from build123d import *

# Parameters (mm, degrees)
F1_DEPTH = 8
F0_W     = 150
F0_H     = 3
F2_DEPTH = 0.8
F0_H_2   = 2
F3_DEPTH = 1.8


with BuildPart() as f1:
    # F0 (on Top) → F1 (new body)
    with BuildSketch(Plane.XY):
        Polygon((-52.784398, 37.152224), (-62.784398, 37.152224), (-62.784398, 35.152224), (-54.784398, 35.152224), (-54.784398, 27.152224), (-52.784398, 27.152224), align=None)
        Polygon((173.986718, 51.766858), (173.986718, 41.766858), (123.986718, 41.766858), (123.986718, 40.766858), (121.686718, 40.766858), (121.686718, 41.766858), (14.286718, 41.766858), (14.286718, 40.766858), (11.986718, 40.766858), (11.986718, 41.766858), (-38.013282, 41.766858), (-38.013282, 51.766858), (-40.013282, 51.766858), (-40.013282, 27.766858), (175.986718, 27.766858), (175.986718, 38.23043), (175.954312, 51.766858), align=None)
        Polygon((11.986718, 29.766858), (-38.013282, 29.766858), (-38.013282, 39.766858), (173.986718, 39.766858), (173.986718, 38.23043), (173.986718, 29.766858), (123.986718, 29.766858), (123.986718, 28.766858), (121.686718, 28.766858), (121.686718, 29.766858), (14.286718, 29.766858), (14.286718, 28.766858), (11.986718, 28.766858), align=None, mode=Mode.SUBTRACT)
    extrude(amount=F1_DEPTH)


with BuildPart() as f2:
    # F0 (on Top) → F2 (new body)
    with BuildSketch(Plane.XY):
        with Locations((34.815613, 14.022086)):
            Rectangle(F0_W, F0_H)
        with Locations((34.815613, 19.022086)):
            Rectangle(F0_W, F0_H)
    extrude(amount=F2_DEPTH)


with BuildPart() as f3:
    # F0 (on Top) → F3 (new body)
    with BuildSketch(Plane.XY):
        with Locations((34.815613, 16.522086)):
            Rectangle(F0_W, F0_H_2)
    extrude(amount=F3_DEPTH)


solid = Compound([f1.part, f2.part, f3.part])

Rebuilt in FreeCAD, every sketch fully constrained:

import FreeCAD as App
import Part
import Sketcher

V = App.Vector

doc = App.newDocument("Part")
body = doc.addObject("PartDesign::Body", "Body")
body.AllowCompound = True

# Sketch on XY plane
sketch1 = doc.addObject("Sketcher::SketchObject", "Sketch")
body.addObject(sketch1)
sketch1.AttachmentSupport = (doc.XY_Plane, [""])
sketch1.MapMode = "FlatFace"
sketch1.addGeometry(Part.LineSegment(V(-52.8, 37.2, 0), V(-62.8, 37.2, 0)), False)
sketch1.addGeometry(Part.LineSegment(V(-62.8, 37.2, 0), V(-62.8, 35.2, 0)), False)
sketch1.addGeometry(Part.LineSegment(V(-62.8, 35.2, 0), V(-54.8, 35.2, 0)), False)
sketch1.addGeometry(Part.LineSegment(V(-54.8, 35.2, 0), V(-54.8, 27.2, 0)), False)
sketch1.addGeometry(Part.LineSegment(V(-54.8, 27.2, 0), V(-52.8, 27.2, 0)), False)
sketch1.addGeometry(Part.LineSegment(V(-52.8, 27.2, 0), V(-52.8, 37.2, 0)), False)
sketch1.addGeometry(Part.LineSegment(V(174, 51.8, 0), V(174, 41.8, 0)), False)
sketch1.addGeometry(Part.LineSegment(V(174, 41.8, 0), V(124, 41.8, 0)), False)
sketch1.addGeometry(Part.LineSegment(V(124, 41.8, 0), V(124, 40.8, 0)), False)
sketch1.addGeometry(Part.LineSegment(V(124, 40.8, 0), V(121.7, 40.8, 0)), False)
sketch1.addGeometry(Part.LineSegment(V(121.7, 40.8, 0), V(121.7, 41.8, 0)), False)
sketch1.addGeometry(Part.LineSegment(V(121.7, 41.8, 0), V(14.3, 41.8, 0)), False)
sketch1.addGeometry(Part.LineSegment(V(14.3, 41.8, 0), V(14.3, 40.8, 0)), False)
sketch1.addGeometry(Part.LineSegment(V(14.3, 40.8, 0), V(12, 40.8, 0)), False)
sketch1.addGeometry(Part.LineSegment(V(12, 40.8, 0), V(12, 41.8, 0)), False)
sketch1.addGeometry(Part.LineSegment(V(12, 41.8, 0), V(-38, 41.8, 0)), False)
sketch1.addGeometry(Part.LineSegment(V(-38, 41.8, 0), V(-38, 51.8, 0)), False)
sketch1.addGeometry(Part.LineSegment(V(-38, 51.8, 0), V(-40, 51.8, 0)), False)
sketch1.addGeometry(Part.LineSegment(V(-40, 51.8, 0), V(-40, 27.8, 0)), False)
sketch1.addGeometry(Part.LineSegment(V(-40, 27.8, 0), V(176, 27.8, 0)), False)
sketch1.addGeometry(Part.LineSegment(V(176, 27.8, 0), V(176, 38.2, 0)), False)
sketch1.addGeometry(Part.LineSegment(V(176, 38.2, 0), V(176, 51.8, 0)), False)
sketch1.addGeometry(Part.LineSegment(V(176, 51.8, 0), V(174, 51.8, 0)), False)
sketch1.addGeometry(Part.LineSegment(V(12, 28.8, 0), V(12, 29.8, 0)), False)
sketch1.addGeometry(Part.LineSegment(V(12, 29.8, 0), V(-38, 29.8, 0)), False)
sketch1.addGeometry(Part.LineSegment(V(-38, 29.8, 0), V(-38, 39.8, 0)), False)
sketch1.addGeometry(Part.LineSegment(V(-38, 39.8, 0), V(174, 39.8, 0)), False)
sketch1.addGeometry(Part.LineSegment(V(174, 39.8, 0), V(174, 29.8, 0)), False)
sketch1.addGeometry(Part.LineSegment(V(174, 29.8, 0), V(124, 29.8, 0)), False)
sketch1.addGeometry(Part.LineSegment(V(124, 29.8, 0), V(124, 28.8, 0)), False)
sketch1.addGeometry(Part.LineSegment(V(124, 28.8, 0), V(121.7, 28.8, 0)), False)
sketch1.addGeometry(Part.LineSegment(V(121.7, 28.8, 0), V(121.7, 29.8, 0)), False)
sketch1.addGeometry(Part.LineSegment(V(121.7, 29.8, 0), V(14.3, 29.8, 0)), False)
sketch1.addGeometry(Part.LineSegment(V(14.3, 29.8, 0), V(14.3, 28.8, 0)), False)
sketch1.addGeometry(Part.LineSegment(V(14.3, 28.8, 0), V(12, 28.8, 0)), False)
sketch1.addConstraint(Sketcher.Constraint("Coincident", 0, 2, 1, 1))
sketch1.addConstraint(Sketcher.Constraint("Coincident", 1, 2, 2, 1))
sketch1.addConstraint(Sketcher.Constraint("Coincident", 2, 2, 3, 1))
sketch1.addConstraint(Sketcher.Constraint("Coincident", 3, 2, 4, 1))
sketch1.addConstraint(Sketcher.Constraint("Coincident", 4, 2, 5, 1))
sketch1.addConstraint(Sketcher.Constraint("Coincident", 5, 2, 0, 1))
sketch1.addConstraint(Sketcher.Constraint("Coincident", 6, 2, 7, 1))
sketch1.addConstraint(Sketcher.Constraint("Coincident", 7, 2, 8, 1))
sketch1.addConstraint(Sketcher.Constraint("Coincident", 8, 2, 9, 1))
sketch1.addConstraint(Sketcher.Constraint("Coincident", 9, 2, 10, 1))
sketch1.addConstraint(Sketcher.Constraint("Coincident", 10, 2, 11, 1))
sketch1.addConstraint(Sketcher.Constraint("Coincident", 11, 2, 12, 1))
sketch1.addConstraint(Sketcher.Constraint("Coincident", 12, 2, 13, 1))
sketch1.addConstraint(Sketcher.Constraint("Coincident", 13, 2, 14, 1))
sketch1.addConstraint(Sketcher.Constraint("Coincident", 14, 2, 15, 1))
sketch1.addConstraint(Sketcher.Constraint("Coincident", 15, 2, 16, 1))
sketch1.addConstraint(Sketcher.Constraint("Coincident", 16, 2, 17, 1))
sketch1.addConstraint(Sketcher.Constraint("Coincident", 17, 2, 18, 1))
sketch1.addConstraint(Sketcher.Constraint("Coincident", 18, 2, 19, 1))
sketch1.addConstraint(Sketcher.Constraint("Coincident", 19, 2, 20, 1))
sketch1.addConstraint(Sketcher.Constraint("Coincident", 20, 2, 21, 1))
sketch1.addConstraint(Sketcher.Constraint("Coincident", 21, 2, 22, 1))
sketch1.addConstraint(Sketcher.Constraint("Coincident", 22, 2, 6, 1))
sketch1.addConstraint(Sketcher.Constraint("Coincident", 23, 2, 24, 1))
sketch1.addConstraint(Sketcher.Constraint("Coincident", 24, 2, 25, 1))
sketch1.addConstraint(Sketcher.Constraint("Coincident", 25, 2, 26, 1))
sketch1.addConstraint(Sketcher.Constraint("Coincident", 26, 2, 27, 1))
sketch1.addConstraint(Sketcher.Constraint("Coincident", 27, 2, 28, 1))
sketch1.addConstraint(Sketcher.Constraint("Coincident", 28, 2, 29, 1))
sketch1.addConstraint(Sketcher.Constraint("Coincident", 29, 2, 30, 1))
sketch1.addConstraint(Sketcher.Constraint("Coincident", 30, 2, 31, 1))
sketch1.addConstraint(Sketcher.Constraint("Coincident", 31, 2, 32, 1))
sketch1.addConstraint(Sketcher.Constraint("Coincident", 32, 2, 33, 1))
sketch1.addConstraint(Sketcher.Constraint("Coincident", 33, 2, 34, 1))
sketch1.addConstraint(Sketcher.Constraint("Coincident", 34, 2, 23, 1))
sketch1.addConstraint(Sketcher.Constraint("Horizontal", 0))
sketch1.addConstraint(Sketcher.Constraint("Vertical", 1))
sketch1.addConstraint(Sketcher.Constraint("Horizontal", 2))
sketch1.addConstraint(Sketcher.Constraint("Vertical", 3))
sketch1.addConstraint(Sketcher.Constraint("Horizontal", 4))
sketch1.addConstraint(Sketcher.Constraint("Vertical", 5))
sketch1.addConstraint(Sketcher.Constraint("Vertical", 6))
sketch1.addConstraint(Sketcher.Constraint("Horizontal", 7))
sketch1.addConstraint(Sketcher.Constraint("Vertical", 8))
sketch1.addConstraint(Sketcher.Constraint("Horizontal", 9))
sketch1.addConstraint(Sketcher.Constraint("Vertical", 10))
sketch1.addConstraint(Sketcher.Constraint("Horizontal", 11))
sketch1.addConstraint(Sketcher.Constraint("Vertical", 12))
sketch1.addConstraint(Sketcher.Constraint("Horizontal", 13))
sketch1.addConstraint(Sketcher.Constraint("Vertical", 14))
sketch1.addConstraint(Sketcher.Constraint("Horizontal", 15))
sketch1.addConstraint(Sketcher.Constraint("Vertical", 16))
sketch1.addConstraint(Sketcher.Constraint("Horizontal", 17))
sketch1.addConstraint(Sketcher.Constraint("Vertical", 18))
sketch1.addConstraint(Sketcher.Constraint("Horizontal", 19))
sketch1.addConstraint(Sketcher.Constraint("Vertical", 20))
sketch1.addConstraint(Sketcher.Constraint("Horizontal", 22))
sketch1.addConstraint(Sketcher.Constraint("Vertical", 23))
sketch1.addConstraint(Sketcher.Constraint("Horizontal", 24))
sketch1.addConstraint(Sketcher.Constraint("Vertical", 25))
sketch1.addConstraint(Sketcher.Constraint("Horizontal", 26))
sketch1.addConstraint(Sketcher.Constraint("Vertical", 27))
sketch1.addConstraint(Sketcher.Constraint("Horizontal", 28))
sketch1.addConstraint(Sketcher.Constraint("Vertical", 29))
sketch1.addConstraint(Sketcher.Constraint("Horizontal", 30))
sketch1.addConstraint(Sketcher.Constraint("Vertical", 31))
sketch1.addConstraint(Sketcher.Constraint("Horizontal", 32))
sketch1.addConstraint(Sketcher.Constraint("Vertical", 33))
sketch1.addConstraint(Sketcher.Constraint("Horizontal", 34))
sketch1.addConstraint(Sketcher.Constraint("Horizontal", 7, 2, 10, 2))
sketch1.addConstraint(Sketcher.Constraint("Horizontal", 9, 2, 12, 2))
sketch1.addConstraint(Sketcher.Constraint("Horizontal", 11, 2, 14, 2))
sketch1.addConstraint(Sketcher.Constraint("Horizontal", 17, 2, 21, 2))
sketch1.addConstraint(Sketcher.Constraint("Horizontal", 24, 2, 27, 2))
sketch1.addConstraint(Sketcher.Constraint("Horizontal", 28, 2, 31, 2))
sketch1.addConstraint(Sketcher.Constraint("Horizontal", 30, 2, 33, 2))
sketch1.addConstraint(Sketcher.Constraint("Vertical", 14, 2, 23, 2))
sketch1.addConstraint(Sketcher.Constraint("Vertical", 16, 2, 24, 2))
sketch1.addConstraint(Sketcher.Constraint("Vertical", 22, 2, 26, 2))
sketch1.addConstraint(Sketcher.Constraint("Vertical", 8, 2, 28, 2))
sketch1.addConstraint(Sketcher.Constraint("Vertical", 10, 2, 30, 2))
sketch1.addConstraint(Sketcher.Constraint("Vertical", 12, 2, 32, 2))
sketch1.addConstraint(Sketcher.Constraint("Equal", 9, 13))
sketch1.addConstraint(Sketcher.Constraint("Equal", 7, 15))
sketch1.addConstraint(Sketcher.Constraint("Equal", 4, 17))
sketch1.addConstraint(Sketcher.Constraint("Equal", 17, 1))
sketch1.addConstraint(Sketcher.Constraint("Equal", 2, 3))
sketch1.addConstraint(Sketcher.Constraint("Equal", 5, 6))
sketch1.addConstraint(Sketcher.Constraint("Equal", 14, 23))
sketch1.addConstraint(Sketcher.Constraint("Equal", 16, 25))
sketch1.addConstraint(Sketcher.Constraint("DistanceX", 0, 2, 0, 1, 10.0))
sketch1.addConstraint(Sketcher.Constraint("DistanceX", 2, 1, 2, 2, 8.0))
sketch1.addConstraint(Sketcher.Constraint("DistanceX", 7, 2, 7, 1, 50.0))
sketch1.addConstraint(Sketcher.Constraint("DistanceX", 19, 1, 19, 2, 216.0))
sketch1.addConstraint(Sketcher.Constraint("DistanceX", 26, 1, 26, 2, 212.0))
sketch1.addConstraint(Sketcher.Constraint("DistanceY", 8, 2, 8, 1, 1.0))
sketch1.addConstraint(Sketcher.Constraint("DistanceY", 18, 2, 18, 1, 24.0))
sketch1.addConstraint(Sketcher.Constraint("DistanceX", 9, 2, 9, 1, 2.3))
sketch1.addConstraint(Sketcher.Constraint("DistanceY", 23, 2, 13, 2, 11.0))
sketch1.addConstraint(Sketcher.Constraint("DistanceY", 20, 1, 20, 2, 10.463572))
sketch1.addConstraint(Sketcher.Constraint("DistanceX", 0, 2, -1, 1, 62.784398))
sketch1.addConstraint(Sketcher.Constraint("DistanceX", 22, 2, 22, 1, 1.967594))
sketch1.addConstraint(Sketcher.Constraint("DistanceX", -1, 1, 6, 2, 173.986718))
sketch1.addConstraint(Sketcher.Constraint("DistanceY", -1, 1, 20, 2, 38.23043))
sketch1.addConstraint(Sketcher.Constraint("DistanceY", -1, 1, 0, 2, 37.152224))
pad1 = doc.addObject("PartDesign::Pad", "Pad")
body.addObject(pad1)
pad1.Profile = sketch1
pad1.Length = 8
body2 = doc.addObject("PartDesign::Body", "Body001")
body2.AllowCompound = True

# Sketch on XY plane
sketch2 = doc.addObject("Sketcher::SketchObject", "Sketch001")
body2.addObject(sketch2)
sketch2.AttachmentSupport = (doc.getObject("XY_Plane001"), [""])
sketch2.MapMode = "FlatFace"
sketch2.addGeometry(Part.LineSegment(V(-40.2, 15.5, 0), V(-40.2, 12.5, 0)), False)
sketch2.addGeometry(Part.LineSegment(V(-40.2, 12.5, 0), V(109.8, 12.5, 0)), False)
sketch2.addGeometry(Part.LineSegment(V(109.8, 12.5, 0), V(109.8, 15.5, 0)), False)
sketch2.addGeometry(Part.LineSegment(V(109.8, 15.5, 0), V(-40.2, 15.5, 0)), False)
sketch2.addGeometry(Part.LineSegment(V(-40.2, 20.5, 0), V(-40.2, 17.5, 0)), False)
sketch2.addGeometry(Part.LineSegment(V(-40.2, 17.5, 0), V(109.8, 17.5, 0)), False)
sketch2.addGeometry(Part.LineSegment(V(109.8, 17.5, 0), V(109.8, 20.5, 0)), False)
sketch2.addGeometry(Part.LineSegment(V(109.8, 20.5, 0), V(-40.2, 20.5, 0)), False)
sketch2.addConstraint(Sketcher.Constraint("Coincident", 0, 2, 1, 1))
sketch2.addConstraint(Sketcher.Constraint("Coincident", 1, 2, 2, 1))
sketch2.addConstraint(Sketcher.Constraint("Coincident", 2, 2, 3, 1))
sketch2.addConstraint(Sketcher.Constraint("Coincident", 3, 2, 0, 1))
sketch2.addConstraint(Sketcher.Constraint("Coincident", 4, 2, 5, 1))
sketch2.addConstraint(Sketcher.Constraint("Coincident", 5, 2, 6, 1))
sketch2.addConstraint(Sketcher.Constraint("Coincident", 6, 2, 7, 1))
sketch2.addConstraint(Sketcher.Constraint("Coincident", 7, 2, 4, 1))
sketch2.addConstraint(Sketcher.Constraint("Vertical", 0))
sketch2.addConstraint(Sketcher.Constraint("Horizontal", 1))
sketch2.addConstraint(Sketcher.Constraint("Vertical", 2))
sketch2.addConstraint(Sketcher.Constraint("Horizontal", 3))
sketch2.addConstraint(Sketcher.Constraint("Vertical", 4))
sketch2.addConstraint(Sketcher.Constraint("Horizontal", 5))
sketch2.addConstraint(Sketcher.Constraint("Vertical", 6))
sketch2.addConstraint(Sketcher.Constraint("Horizontal", 7))
sketch2.addConstraint(Sketcher.Constraint("Vertical", 3, 2, 4, 2))
sketch2.addConstraint(Sketcher.Constraint("Vertical", 2, 2, 5, 2))
sketch2.addConstraint(Sketcher.Constraint("Equal", 2, 4))
sketch2.addConstraint(Sketcher.Constraint("DistanceX", 1, 1, 1, 2, 150.0))
sketch2.addConstraint(Sketcher.Constraint("DistanceY", 0, 2, 0, 1, 3.0))
sketch2.addConstraint(Sketcher.Constraint("DistanceY", 3, 2, 4, 2, 2.0))
sketch2.addConstraint(Sketcher.Constraint("DistanceX", 0, 2, -1, 1, 40.184387))
sketch2.addConstraint(Sketcher.Constraint("DistanceY", -1, 1, 0, 2, 12.522086))
pad2 = doc.addObject("PartDesign::Pad", "Pad001")
body2.addObject(pad2)
pad2.Profile = sketch2
pad2.Length = 0.8
body3 = doc.addObject("PartDesign::Body", "Body002")

# Sketch on XY plane
sketch3 = doc.addObject("Sketcher::SketchObject", "Sketch002")
body3.addObject(sketch3)
sketch3.AttachmentSupport = (doc.getObject("XY_Plane002"), [""])
sketch3.MapMode = "FlatFace"
sketch3.addGeometry(Part.LineSegment(V(-40.2, 17.5, 0), V(-40.2, 15.5, 0)), False)
sketch3.addGeometry(Part.LineSegment(V(-40.2, 15.5, 0), V(109.8, 15.5, 0)), False)
sketch3.addGeometry(Part.LineSegment(V(109.8, 15.5, 0), V(109.8, 17.5, 0)), False)
sketch3.addGeometry(Part.LineSegment(V(109.8, 17.5, 0), V(-40.2, 17.5, 0)), False)
sketch3.addConstraint(Sketcher.Constraint("Coincident", 0, 2, 1, 1))
sketch3.addConstraint(Sketcher.Constraint("Coincident", 1, 2, 2, 1))
sketch3.addConstraint(Sketcher.Constraint("Coincident", 2, 2, 3, 1))
sketch3.addConstraint(Sketcher.Constraint("Coincident", 3, 2, 0, 1))
sketch3.addConstraint(Sketcher.Constraint("Vertical", 0))
sketch3.addConstraint(Sketcher.Constraint("Horizontal", 1))
sketch3.addConstraint(Sketcher.Constraint("Vertical", 2))
sketch3.addConstraint(Sketcher.Constraint("Horizontal", 3))
sketch3.addConstraint(Sketcher.Constraint("DistanceX", 1, 1, 1, 2, 150.0))
sketch3.addConstraint(Sketcher.Constraint("DistanceY", 0, 2, 0, 1, 2.0))
sketch3.addConstraint(Sketcher.Constraint("DistanceX", 0, 2, -1, 1, 40.184387))
sketch3.addConstraint(Sketcher.Constraint("DistanceY", -1, 1, 0, 2, 15.522086))
pad3 = doc.addObject("PartDesign::Pad", "Pad002")
body3.addObject(pad3)
pad3.Profile = sketch3
pad3.Length = 1.8

doc.recompute()
